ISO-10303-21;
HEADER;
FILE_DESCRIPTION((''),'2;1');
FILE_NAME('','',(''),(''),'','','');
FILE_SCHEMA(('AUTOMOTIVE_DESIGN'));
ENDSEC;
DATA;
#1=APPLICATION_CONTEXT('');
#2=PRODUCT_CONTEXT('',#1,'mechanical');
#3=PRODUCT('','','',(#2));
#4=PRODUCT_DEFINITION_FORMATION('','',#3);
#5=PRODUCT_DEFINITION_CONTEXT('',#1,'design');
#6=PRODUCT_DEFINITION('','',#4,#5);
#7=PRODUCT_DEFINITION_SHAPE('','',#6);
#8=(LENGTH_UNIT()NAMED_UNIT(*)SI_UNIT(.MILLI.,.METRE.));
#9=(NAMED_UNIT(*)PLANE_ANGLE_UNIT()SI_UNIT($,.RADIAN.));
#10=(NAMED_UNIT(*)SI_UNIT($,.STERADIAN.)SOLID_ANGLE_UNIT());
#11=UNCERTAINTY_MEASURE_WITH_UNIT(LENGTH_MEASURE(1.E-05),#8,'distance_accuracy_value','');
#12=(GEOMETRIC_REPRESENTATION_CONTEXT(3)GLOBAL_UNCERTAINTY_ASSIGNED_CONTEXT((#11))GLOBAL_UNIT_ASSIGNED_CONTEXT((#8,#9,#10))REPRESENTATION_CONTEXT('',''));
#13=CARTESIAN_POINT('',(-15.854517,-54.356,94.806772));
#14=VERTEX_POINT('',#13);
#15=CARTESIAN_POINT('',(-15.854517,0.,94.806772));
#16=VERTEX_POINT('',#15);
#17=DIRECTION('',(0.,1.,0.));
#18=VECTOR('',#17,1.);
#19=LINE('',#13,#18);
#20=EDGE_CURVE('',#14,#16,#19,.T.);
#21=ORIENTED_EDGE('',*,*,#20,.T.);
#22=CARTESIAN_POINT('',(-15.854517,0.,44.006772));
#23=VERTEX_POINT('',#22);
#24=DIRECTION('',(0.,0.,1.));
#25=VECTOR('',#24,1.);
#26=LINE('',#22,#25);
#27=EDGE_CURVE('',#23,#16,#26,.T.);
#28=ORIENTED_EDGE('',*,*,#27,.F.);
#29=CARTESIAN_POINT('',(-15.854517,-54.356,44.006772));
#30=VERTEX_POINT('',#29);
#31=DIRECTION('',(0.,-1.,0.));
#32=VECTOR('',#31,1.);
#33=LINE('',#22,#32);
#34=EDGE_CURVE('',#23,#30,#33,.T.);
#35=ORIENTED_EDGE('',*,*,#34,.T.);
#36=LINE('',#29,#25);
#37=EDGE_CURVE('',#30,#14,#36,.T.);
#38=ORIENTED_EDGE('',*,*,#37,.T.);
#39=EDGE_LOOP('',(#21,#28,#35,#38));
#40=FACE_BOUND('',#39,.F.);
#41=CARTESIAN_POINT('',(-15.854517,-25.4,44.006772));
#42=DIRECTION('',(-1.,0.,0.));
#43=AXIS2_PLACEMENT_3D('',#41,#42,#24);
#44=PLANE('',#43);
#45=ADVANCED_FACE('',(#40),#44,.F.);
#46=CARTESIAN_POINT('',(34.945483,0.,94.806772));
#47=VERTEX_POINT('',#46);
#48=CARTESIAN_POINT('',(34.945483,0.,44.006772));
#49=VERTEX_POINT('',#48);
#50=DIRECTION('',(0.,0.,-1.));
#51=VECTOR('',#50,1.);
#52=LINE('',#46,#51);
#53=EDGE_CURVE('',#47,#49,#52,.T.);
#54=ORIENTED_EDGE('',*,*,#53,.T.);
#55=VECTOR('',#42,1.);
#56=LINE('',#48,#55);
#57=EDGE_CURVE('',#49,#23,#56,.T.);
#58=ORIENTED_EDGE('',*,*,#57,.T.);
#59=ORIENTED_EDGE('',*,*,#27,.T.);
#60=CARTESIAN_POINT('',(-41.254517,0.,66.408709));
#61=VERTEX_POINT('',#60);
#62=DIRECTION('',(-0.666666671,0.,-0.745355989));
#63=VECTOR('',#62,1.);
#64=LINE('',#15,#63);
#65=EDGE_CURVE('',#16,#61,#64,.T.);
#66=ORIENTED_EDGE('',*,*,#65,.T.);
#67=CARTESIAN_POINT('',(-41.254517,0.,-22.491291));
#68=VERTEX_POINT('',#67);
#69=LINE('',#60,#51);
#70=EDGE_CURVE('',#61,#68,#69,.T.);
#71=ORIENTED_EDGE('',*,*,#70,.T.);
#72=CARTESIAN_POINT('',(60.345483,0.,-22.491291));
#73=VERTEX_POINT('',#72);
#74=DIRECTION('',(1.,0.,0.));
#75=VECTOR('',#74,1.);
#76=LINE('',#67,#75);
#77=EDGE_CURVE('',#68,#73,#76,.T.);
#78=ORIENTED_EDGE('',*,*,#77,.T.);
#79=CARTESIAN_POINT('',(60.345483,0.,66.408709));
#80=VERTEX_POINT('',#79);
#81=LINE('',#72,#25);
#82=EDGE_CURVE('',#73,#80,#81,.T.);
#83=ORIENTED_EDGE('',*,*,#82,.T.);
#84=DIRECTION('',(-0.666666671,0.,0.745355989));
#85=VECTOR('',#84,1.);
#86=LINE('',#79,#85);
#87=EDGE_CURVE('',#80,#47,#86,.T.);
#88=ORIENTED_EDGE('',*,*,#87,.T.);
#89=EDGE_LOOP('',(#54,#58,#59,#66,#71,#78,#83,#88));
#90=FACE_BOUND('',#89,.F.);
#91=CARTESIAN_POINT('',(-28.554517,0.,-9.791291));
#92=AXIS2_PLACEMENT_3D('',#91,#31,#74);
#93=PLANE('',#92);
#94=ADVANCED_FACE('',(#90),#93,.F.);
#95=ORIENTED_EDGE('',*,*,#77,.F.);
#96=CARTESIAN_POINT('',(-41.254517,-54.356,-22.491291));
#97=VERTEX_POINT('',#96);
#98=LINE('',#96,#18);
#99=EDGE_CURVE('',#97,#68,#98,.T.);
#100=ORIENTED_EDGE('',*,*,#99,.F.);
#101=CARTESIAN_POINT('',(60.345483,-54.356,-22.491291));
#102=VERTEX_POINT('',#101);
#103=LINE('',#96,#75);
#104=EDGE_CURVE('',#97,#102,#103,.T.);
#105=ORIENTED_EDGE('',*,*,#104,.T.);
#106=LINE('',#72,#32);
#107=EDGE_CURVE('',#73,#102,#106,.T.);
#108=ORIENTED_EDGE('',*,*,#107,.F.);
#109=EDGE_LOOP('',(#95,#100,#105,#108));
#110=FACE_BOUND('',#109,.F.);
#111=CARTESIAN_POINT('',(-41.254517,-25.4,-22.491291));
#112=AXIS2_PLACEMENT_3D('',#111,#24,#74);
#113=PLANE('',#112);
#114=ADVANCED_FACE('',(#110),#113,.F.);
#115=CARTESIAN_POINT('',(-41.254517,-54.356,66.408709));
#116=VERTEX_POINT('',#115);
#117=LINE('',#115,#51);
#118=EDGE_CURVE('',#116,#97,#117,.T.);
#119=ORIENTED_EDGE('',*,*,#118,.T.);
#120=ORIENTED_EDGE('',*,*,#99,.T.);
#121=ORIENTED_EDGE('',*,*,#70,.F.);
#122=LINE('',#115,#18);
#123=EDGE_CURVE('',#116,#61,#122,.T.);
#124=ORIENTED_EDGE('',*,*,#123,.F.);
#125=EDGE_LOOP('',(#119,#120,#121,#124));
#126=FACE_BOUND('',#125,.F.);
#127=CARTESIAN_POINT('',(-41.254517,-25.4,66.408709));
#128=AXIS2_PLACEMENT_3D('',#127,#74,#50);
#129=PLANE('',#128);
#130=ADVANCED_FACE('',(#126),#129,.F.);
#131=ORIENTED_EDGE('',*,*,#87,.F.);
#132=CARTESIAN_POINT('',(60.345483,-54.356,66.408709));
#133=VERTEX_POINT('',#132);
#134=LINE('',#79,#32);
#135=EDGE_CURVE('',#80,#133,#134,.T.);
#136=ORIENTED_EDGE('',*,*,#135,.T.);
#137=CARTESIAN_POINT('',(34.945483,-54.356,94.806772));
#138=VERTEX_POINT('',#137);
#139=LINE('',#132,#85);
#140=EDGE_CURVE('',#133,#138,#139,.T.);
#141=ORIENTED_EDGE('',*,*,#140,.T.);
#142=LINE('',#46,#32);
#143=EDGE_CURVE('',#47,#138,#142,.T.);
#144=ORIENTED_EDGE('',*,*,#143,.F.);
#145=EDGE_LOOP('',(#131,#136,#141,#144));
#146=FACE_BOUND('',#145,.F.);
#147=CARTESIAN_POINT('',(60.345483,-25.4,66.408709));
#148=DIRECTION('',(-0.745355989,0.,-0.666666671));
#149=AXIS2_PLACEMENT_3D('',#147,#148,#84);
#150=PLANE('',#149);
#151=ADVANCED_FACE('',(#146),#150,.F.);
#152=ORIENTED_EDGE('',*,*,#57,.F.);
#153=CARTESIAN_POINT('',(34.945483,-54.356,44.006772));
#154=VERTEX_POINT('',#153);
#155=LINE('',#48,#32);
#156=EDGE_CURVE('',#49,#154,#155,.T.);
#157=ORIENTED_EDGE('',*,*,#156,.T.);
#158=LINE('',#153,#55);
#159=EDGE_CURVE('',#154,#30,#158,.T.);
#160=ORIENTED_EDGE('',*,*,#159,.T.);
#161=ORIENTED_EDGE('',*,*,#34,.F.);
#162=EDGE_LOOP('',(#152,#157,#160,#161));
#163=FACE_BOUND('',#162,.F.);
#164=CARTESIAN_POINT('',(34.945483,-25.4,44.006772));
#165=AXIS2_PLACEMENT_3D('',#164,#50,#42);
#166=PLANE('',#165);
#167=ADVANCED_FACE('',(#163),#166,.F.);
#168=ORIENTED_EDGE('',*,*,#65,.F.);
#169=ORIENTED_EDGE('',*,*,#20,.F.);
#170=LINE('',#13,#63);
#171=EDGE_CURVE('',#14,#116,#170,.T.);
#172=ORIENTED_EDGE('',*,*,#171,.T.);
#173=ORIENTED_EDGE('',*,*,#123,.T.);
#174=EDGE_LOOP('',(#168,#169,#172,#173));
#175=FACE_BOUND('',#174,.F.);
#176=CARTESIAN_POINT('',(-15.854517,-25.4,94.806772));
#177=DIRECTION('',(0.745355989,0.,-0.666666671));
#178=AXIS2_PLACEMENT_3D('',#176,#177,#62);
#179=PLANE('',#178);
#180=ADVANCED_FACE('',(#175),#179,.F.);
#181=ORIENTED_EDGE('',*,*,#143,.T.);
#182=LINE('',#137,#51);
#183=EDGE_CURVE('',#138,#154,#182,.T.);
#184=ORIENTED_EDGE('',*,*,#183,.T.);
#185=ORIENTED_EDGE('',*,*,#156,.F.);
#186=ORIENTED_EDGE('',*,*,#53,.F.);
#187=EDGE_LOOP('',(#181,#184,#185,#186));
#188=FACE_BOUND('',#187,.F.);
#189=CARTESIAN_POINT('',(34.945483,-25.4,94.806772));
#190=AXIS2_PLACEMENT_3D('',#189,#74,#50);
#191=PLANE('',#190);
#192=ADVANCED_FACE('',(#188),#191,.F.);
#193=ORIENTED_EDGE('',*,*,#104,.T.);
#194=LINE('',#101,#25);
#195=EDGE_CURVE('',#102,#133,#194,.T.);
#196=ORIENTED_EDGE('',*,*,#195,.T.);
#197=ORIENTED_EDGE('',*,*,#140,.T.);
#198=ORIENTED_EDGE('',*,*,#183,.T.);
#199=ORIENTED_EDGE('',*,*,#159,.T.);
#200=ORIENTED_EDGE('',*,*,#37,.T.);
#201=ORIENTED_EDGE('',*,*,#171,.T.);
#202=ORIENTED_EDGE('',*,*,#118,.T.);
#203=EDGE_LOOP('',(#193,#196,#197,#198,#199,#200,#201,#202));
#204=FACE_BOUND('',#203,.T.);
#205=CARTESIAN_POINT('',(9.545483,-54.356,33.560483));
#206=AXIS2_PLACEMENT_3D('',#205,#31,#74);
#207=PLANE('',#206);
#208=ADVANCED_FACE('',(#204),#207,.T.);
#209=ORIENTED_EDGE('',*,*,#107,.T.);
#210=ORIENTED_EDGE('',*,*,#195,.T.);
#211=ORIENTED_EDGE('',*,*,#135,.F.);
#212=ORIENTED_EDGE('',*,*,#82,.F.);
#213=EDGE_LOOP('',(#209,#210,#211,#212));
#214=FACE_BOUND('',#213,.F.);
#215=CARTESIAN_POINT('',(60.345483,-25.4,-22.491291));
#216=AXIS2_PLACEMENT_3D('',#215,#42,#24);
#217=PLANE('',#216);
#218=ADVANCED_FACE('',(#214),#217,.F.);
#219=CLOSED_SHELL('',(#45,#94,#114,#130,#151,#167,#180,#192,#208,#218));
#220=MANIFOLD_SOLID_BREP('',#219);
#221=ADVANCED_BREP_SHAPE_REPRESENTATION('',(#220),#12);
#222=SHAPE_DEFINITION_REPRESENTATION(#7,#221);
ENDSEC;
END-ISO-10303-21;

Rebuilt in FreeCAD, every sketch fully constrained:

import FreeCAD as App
import Part
import Sketcher

V = App.Vector
Q = App.Units.Quantity

doc = App.newDocument("Part")
params = doc.addObject("Spreadsheet::Sheet", "Params")
for row, (alias, value) in enumerate([
    ("sketch1_width", "4 in"),
    ("sketch1_width2", "2 in"),
    ("sketch1_height", "3.5 in"),
    ("sketch1_length", "1.5 in"),
    ("pad1_length", "1 in"),
    ("sketch2_width", "4 in"),
    ("sketch2_width2", "2 in"),
    ("sketch2_height", "3.5 in"),
    ("sketch2_length", "1.5 in"),
    ("pad2_length", "1.14 in"),
], start=1):
    params.set(f"A{row}", alias)
    params.set(f"B{row}", "=" + value)
    params.setAlias(f"B{row}", alias)

body = doc.addObject("PartDesign::Body", "Body")

# Sketch on XZ plane
sketch1 = body.newObject("Sketcher::SketchObject", "Sketch")
sketch1.AttachmentSupport = (doc.getObject("XZ_Plane"), [""])
sketch1.MapMode = "FlatFace"
sketch1.addGeometry(Part.LineSegment(V(-41, -22, 0), V(60, -22, 0)), False)
sketch1.addGeometry(Part.LineSegment(V(60, -22, 0), V(60, 66, 0)), False)
sketch1.addGeometry(Part.LineSegment(V(60, 66, 0), V(35, 95, 0)), False)
sketch1.addGeometry(Part.LineSegment(V(35, 95, 0), V(35, 44, 0)), False)
sketch1.addGeometry(Part.LineSegment(V(35, 44, 0), V(-16, 44, 0)), False)
sketch1.addGeometry(Part.LineSegment(V(-16, 44, 0), V(-16, 95, 0)), False)
sketch1.addGeometry(Part.LineSegment(V(-16, 95, 0), V(-41, 66, 0)), False)
sketch1.addGeometry(Part.LineSegment(V(-41, 66, 0), V(-41, -22, 0)), False)
sketch1.addConstraint(Sketcher.Constraint("Coincident", 0, 2, 1, 1))
sketch1.addConstraint(Sketcher.Constraint("Coincident", 1, 2, 2, 1))
sketch1.addConstraint(Sketcher.Constraint("Coincident", 2, 2, 3, 1))
sketch1.addConstraint(Sketcher.Constraint("Coincident", 3, 2, 4, 1))
sketch1.addConstraint(Sketcher.Constraint("Coincident", 4, 2, 5, 1))
sketch1.addConstraint(Sketcher.Constraint("Coincident", 5, 2, 6, 1))
sketch1.addConstraint(Sketcher.Constraint("Coincident", 6, 2, 7, 1))
sketch1.addConstraint(Sketcher.Constraint("Coincident", 7, 2, 0, 1))
sketch1.addConstraint(Sketcher.Constraint("Horizontal", 0))
sketch1.addConstraint(Sketcher.Constraint("Vertical", 1))
sketch1.addConstraint(Sketcher.Constraint("Vertical", 3))
sketch1.addConstraint(Sketcher.Constraint("Horizontal", 4))
sketch1.addConstraint(Sketcher.Constraint("Vertical", 5))
sketch1.addConstraint(Sketcher.Constraint("Vertical", 7))
sketch1.addConstraint(Sketcher.Constraint("Horizontal", 2, 2, 5, 2))
sketch1.addConstraint(Sketcher.Constraint("Horizontal", 1, 2, 6, 2))
sketch1.addConstraint(Sketcher.Constraint("Equal", 4, 3))
sketch1.addConstraint(Sketcher.Constraint("Equal", 2, 6))
sketch1.addConstraint(Sketcher.Constraint("DistanceX", 0, 1, 0, 2, Q("4 in")))
sketch1.addConstraint(Sketcher.Constraint("DistanceX", 4, 2, 4, 1, Q("2 in")))
sketch1.addConstraint(Sketcher.Constraint("DistanceY", 1, 1, 1, 2, Q("3.5 in")))
sketch1.addConstraint(Sketcher.Constraint("Distance", 2, Q("1.5 in")))
sketch1.addConstraint(Sketcher.Constraint("DistanceY", 0, 2, -1, 1, Q("22.491291 mm")))
sketch1.addConstraint(Sketcher.Constraint("DistanceX", -1, 1, 0, 2, Q("60.345483 mm")))
sketch1.setExpression("Constraints[18]", "Params.sketch1_width")
sketch1.setExpression("Constraints[19]", "Params.sketch1_width2")
sketch1.setExpression("Constraints[20]", "Params.sketch1_height")
sketch1.setExpression("Constraints[21]", "Params.sketch1_length")
pad1 = body.newObject("PartDesign::Pad", "Pad")
pad1.Profile = sketch1
pad1.setExpression("Length", "Params.pad1_length")

# Sketch on XZ plane
sketch2 = body.newObject("Sketcher::SketchObject", "Sketch001")
sketch2.AttachmentSupport = (doc.getObject("XZ_Plane"), [""])
sketch2.MapMode = "FlatFace"
sketch2.AttachmentOffset = App.Placement(V(0, 0, 1 * 25.4), App.Rotation())
sketch2.addGeometry(Part.LineSegment(V(-41, -22, 0), V(60, -22, 0)), False)
sketch2.addGeometry(Part.LineSegment(V(60, -22, 0), V(60, 66, 0)), False)
sketch2.addGeometry(Part.LineSegment(V(60, 66, 0), V(35, 95, 0)), False)
sketch2.addGeometry(Part.LineSegment(V(35, 95, 0), V(35, 44, 0)), False)
sketch2.addGeometry(Part.LineSegment(V(35, 44, 0), V(-16, 44, 0)), False)
sketch2.addGeometry(Part.LineSegment(V(-16, 44, 0), V(-16, 95, 0)), False)
sketch2.addGeometry(Part.LineSegment(V(-16, 95, 0), V(-41, 66, 0)), False)
sketch2.addGeometry(Part.LineSegment(V(-41, 66, 0), V(-41, -22, 0)), False)
sketch2.addConstraint(Sketcher.Constraint("Coincident", 0, 2, 1, 1))
sketch2.addConstraint(Sketcher.Constraint("Coincident", 1, 2, 2, 1))
sketch2.addConstraint(Sketcher.Constraint("Coincident", 2, 2, 3, 1))
sketch2.addConstraint(Sketcher.Constraint("Coincident", 3, 2, 4, 1))
sketch2.addConstraint(Sketcher.Constraint("Coincident", 4, 2, 5, 1))
sketch2.addConstraint(Sketcher.Constraint("Coincident", 5, 2, 6, 1))
sketch2.addConstraint(Sketcher.Constraint("Coincident", 6, 2, 7, 1))
sketch2.addConstraint(Sketcher.Constraint("Coincident", 7, 2, 0, 1))
sketch2.addConstraint(Sketcher.Constraint("Horizontal", 0))
sketch2.addConstraint(Sketcher.Constraint("Vertical", 1))
sketch2.addConstraint(Sketcher.Constraint("Vertical", 3))
sketch2.addConstraint(Sketcher.Constraint("Horizontal", 4))
sketch2.addConstraint(Sketcher.Constraint("Vertical", 5))
sketch2.addConstraint(Sketcher.Constraint("Vertical", 7))
sketch2.addConstraint(Sketcher.Constraint("Horizontal", 2, 2, 5, 2))
sketch2.addConstraint(Sketcher.Constraint("Horizontal", 1, 2, 6, 2))
sketch2.addConstraint(Sketcher.Constraint("Equal", 4, 3))
sketch2.addConstraint(Sketcher.Constraint("Equal", 2, 6))
sketch2.addConstraint(Sketcher.Constraint("DistanceX", 0, 1, 0, 2, Q("4 in")))
sketch2.addConstraint(Sketcher.Constraint("DistanceX", 4, 2, 4, 1, Q("2 in")))
sketch2.addConstraint(Sketcher.Constraint("DistanceY", 1, 1, 1, 2, Q("3.5 in")))
sketch2.addConstraint(Sketcher.Constraint("Distance", 2, Q("1.5 in")))
sketch2.addConstraint(Sketcher.Constraint("DistanceY", 0, 2, -1, 1, Q("22.491291 mm")))
sketch2.addConstraint(Sketcher.Constraint("DistanceX", -1, 1, 0, 2, Q("60.345483 mm")))
sketch2.setExpression("Constraints[18]", "Params.sketch2_width")
sketch2.setExpression("Constraints[19]", "Params.sketch2_width2")
sketch2.setExpression("Constraints[20]", "Params.sketch2_height")
sketch2.setExpression("Constraints[21]", "Params.sketch2_length")
pad2 = body.newObject("PartDesign::Pad", "Pad001")
pad2.Profile = sketch2
pad2.setExpression("Length", "Params.pad2_length")

doc.recompute()
